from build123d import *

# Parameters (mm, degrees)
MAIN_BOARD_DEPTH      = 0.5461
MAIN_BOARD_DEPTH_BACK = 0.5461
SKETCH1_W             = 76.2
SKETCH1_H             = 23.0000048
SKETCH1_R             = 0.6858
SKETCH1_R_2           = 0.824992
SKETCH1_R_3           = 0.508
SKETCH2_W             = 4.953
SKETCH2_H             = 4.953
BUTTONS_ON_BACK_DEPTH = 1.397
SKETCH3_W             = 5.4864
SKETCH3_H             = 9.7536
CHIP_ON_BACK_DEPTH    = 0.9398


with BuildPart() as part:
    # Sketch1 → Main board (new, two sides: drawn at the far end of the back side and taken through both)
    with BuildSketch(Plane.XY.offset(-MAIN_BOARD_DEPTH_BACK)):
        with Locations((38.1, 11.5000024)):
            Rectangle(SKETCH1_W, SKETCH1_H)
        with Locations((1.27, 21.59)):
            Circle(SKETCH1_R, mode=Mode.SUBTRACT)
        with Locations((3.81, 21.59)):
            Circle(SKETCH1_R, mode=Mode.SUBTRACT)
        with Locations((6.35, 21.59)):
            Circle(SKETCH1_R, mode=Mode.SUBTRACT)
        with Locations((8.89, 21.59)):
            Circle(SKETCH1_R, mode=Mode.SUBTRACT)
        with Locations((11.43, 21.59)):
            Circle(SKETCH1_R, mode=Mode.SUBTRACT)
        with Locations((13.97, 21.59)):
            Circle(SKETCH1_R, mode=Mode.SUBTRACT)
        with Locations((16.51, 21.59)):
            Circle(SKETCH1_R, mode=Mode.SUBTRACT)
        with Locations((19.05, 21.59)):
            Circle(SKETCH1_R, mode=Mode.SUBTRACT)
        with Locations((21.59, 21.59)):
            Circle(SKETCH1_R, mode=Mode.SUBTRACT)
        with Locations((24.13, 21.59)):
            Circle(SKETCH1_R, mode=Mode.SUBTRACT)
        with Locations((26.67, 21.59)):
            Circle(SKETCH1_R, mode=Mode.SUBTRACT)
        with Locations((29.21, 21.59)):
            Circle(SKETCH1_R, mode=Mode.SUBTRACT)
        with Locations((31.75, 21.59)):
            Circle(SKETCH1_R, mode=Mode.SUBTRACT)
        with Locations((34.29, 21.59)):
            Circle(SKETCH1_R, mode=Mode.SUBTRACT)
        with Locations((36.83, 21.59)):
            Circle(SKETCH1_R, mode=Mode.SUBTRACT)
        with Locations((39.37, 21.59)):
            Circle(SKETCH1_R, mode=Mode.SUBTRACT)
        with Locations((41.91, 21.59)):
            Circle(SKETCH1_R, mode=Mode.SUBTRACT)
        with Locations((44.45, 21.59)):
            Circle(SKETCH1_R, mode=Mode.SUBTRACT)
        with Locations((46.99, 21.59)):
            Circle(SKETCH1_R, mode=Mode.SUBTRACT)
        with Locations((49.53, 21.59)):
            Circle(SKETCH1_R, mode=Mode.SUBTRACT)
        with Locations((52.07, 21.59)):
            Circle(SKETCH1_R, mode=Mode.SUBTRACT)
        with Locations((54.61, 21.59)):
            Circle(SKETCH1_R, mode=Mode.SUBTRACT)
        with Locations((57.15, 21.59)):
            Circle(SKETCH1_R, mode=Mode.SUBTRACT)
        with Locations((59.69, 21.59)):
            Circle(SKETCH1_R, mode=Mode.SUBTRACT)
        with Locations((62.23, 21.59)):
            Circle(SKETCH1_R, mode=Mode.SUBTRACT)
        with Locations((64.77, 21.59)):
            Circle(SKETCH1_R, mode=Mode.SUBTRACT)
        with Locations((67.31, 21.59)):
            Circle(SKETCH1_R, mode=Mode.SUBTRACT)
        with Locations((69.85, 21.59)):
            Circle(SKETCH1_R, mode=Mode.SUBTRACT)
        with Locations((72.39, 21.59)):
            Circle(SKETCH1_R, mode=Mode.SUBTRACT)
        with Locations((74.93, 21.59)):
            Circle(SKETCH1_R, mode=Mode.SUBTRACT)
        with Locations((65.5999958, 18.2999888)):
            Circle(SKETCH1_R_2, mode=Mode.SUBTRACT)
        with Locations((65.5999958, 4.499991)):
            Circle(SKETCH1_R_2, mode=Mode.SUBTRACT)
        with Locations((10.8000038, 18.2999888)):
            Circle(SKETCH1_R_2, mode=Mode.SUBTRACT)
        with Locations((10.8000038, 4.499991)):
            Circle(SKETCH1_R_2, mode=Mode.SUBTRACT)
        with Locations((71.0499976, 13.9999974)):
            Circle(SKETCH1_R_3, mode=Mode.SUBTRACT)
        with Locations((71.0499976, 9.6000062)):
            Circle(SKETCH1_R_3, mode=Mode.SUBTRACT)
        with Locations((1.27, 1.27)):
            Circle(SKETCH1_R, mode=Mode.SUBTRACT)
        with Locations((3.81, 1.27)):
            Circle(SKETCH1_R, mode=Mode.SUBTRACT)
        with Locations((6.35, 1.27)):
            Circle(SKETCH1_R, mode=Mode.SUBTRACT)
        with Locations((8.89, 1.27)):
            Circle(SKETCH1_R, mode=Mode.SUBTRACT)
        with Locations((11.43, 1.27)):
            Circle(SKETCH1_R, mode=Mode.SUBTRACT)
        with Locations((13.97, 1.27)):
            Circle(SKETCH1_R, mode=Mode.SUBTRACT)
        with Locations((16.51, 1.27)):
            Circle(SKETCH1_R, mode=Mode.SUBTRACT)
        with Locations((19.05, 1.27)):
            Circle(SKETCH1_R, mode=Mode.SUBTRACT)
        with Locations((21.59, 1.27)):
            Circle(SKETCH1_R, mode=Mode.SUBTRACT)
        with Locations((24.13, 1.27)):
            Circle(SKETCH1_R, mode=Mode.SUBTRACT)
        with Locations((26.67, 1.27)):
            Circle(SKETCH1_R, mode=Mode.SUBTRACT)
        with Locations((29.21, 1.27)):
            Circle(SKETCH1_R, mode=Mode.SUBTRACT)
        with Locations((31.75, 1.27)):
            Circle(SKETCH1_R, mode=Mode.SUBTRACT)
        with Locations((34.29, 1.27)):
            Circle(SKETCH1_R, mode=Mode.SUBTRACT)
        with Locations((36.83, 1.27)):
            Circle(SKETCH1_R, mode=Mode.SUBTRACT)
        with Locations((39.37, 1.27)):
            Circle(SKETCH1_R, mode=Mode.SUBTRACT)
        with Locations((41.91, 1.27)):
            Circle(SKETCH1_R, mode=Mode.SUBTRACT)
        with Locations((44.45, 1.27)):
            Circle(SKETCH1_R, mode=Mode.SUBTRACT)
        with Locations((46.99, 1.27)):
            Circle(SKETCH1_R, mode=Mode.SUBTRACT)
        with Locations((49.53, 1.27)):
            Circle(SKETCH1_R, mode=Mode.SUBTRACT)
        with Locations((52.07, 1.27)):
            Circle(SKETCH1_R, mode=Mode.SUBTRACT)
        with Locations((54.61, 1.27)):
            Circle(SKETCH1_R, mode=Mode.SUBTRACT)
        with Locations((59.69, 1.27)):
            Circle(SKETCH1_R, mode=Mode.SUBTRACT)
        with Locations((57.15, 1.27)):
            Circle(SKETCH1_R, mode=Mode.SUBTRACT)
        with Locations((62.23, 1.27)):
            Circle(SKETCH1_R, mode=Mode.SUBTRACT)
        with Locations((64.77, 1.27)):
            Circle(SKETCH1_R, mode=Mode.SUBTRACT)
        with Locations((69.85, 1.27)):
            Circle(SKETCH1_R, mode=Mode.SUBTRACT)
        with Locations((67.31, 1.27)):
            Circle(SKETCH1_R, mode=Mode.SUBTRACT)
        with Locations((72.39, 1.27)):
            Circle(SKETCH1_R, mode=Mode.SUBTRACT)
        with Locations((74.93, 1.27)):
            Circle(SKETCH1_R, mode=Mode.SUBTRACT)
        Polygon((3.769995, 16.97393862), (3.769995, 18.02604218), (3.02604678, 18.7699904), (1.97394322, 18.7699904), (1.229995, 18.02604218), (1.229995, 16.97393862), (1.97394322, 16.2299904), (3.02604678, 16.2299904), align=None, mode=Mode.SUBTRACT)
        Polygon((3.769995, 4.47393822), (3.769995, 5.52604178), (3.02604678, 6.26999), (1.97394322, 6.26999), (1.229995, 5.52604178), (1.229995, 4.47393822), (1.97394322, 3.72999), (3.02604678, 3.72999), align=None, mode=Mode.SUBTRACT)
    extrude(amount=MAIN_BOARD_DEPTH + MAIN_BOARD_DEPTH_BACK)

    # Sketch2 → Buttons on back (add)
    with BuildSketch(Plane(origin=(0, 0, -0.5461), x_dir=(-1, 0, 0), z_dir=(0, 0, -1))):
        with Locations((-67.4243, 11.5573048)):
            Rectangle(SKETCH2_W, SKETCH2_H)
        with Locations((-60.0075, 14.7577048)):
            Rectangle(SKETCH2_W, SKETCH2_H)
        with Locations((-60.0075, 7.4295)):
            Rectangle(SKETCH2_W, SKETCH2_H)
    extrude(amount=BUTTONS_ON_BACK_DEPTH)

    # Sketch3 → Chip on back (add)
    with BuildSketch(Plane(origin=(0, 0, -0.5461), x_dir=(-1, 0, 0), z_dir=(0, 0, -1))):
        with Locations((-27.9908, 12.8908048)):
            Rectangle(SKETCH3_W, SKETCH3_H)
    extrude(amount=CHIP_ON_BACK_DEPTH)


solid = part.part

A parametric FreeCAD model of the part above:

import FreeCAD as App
import Part
import Sketcher
from FreeCAD import Vector
Q = App.Units.Quantity

doc = App.newDocument("Part")
body = doc.addObject("PartDesign::Body", "Body")

sketch1 = body.newObject("Sketcher::SketchObject", "Sketch")
sketch1.AttachmentSupport = (doc.getObject("XY_Plane"), [""])
sketch1.MapMode = "FlatFace"
sketch1.addGeometry([
    Part.LineSegment(Vector(0, 23, 0), Vector(0, 0, 0)),
    Part.LineSegment(Vector(0, 0, 0), Vector(76.2, 0, 0)),
    Part.LineSegment(Vector(76.2, 0, 0), Vector(76.2, 23, 0)),
    Part.LineSegment(Vector(76.2, 23, 0), Vector(0, 23, 0)),
    Part.Circle(Vector(1.3, 1.3, 0), Vector(0, 0, 1), 0.7),
    Part.Circle(Vector(3.8, 1.3, 0), Vector(0, 0, 1), 0.7),
    Part.Circle(Vector(6.3, 1.3, 0), Vector(0, 0, 1), 0.7),
    Part.Circle(Vector(8.9, 1.3, 0), Vector(0, 0, 1), 0.7),
    Part.Circle(Vector(11.4, 1.3, 0), Vector(0, 0, 1), 0.7),
    Part.Circle(Vector(14, 1.3, 0), Vector(0, 0, 1), 0.7),
    Part.Circle(Vector(16.5, 1.3, 0), Vector(0, 0, 1), 0.7),
    Part.Circle(Vector(19.1, 1.3, 0), Vector(0, 0, 1), 0.7),
    Part.LineSegment(Vector(3.8, 5.5, 0), Vector(3.8, 4.5, 0)),
    Part.LineSegment(Vector(3.8, 4.5, 0), Vector(3, 3.7, 0)),
    Part.LineSegment(Vector(3, 3.7, 0), Vector(2, 3.7, 0)),
    Part.LineSegment(Vector(2, 3.7, 0), Vector(1.2, 4.5, 0)),
    Part.LineSegment(Vector(1.2, 4.5, 0), Vector(1.2, 5.5, 0)),
    Part.LineSegment(Vector(1.2, 5.5, 0), Vector(2, 6.3, 0)),
    Part.LineSegment(Vector(2, 6.3, 0), Vector(3, 6.3, 0)),
    Part.LineSegment(Vector(3, 6.3, 0), Vector(3.8, 5.5, 0)),
    Part.Circle(Vector(10.8, 4.5, 0), Vector(0, 0, 1), 0.8),
    Part.Circle(Vector(21.6, 1.3, 0), Vector(0, 0, 1), 0.7),
    Part.Circle(Vector(24.1, 1.3, 0), Vector(0, 0, 1), 0.7),
    Part.Circle(Vector(26.7, 1.3, 0), Vector(0, 0, 1), 0.7),
    Part.Circle(Vector(29.2, 1.3, 0), Vector(0, 0, 1), 0.7),
    Part.Circle(Vector(31.8, 1.3, 0), Vector(0, 0, 1), 0.7),
    Part.Circle(Vector(34.3, 1.3, 0), Vector(0, 0, 1), 0.7),
    Part.Circle(Vector(36.8, 1.3, 0), Vector(0, 0, 1), 0.7),
    Part.Circle(Vector(39.4, 1.3, 0), Vector(0, 0, 1), 0.7),
    Part.Circle(Vector(41.9, 1.3, 0), Vector(0, 0, 1), 0.7),
    Part.Circle(Vector(44.5, 1.3, 0), Vector(0, 0, 1), 0.7),
    Part.Circle(Vector(47, 1.3, 0), Vector(0, 0, 1), 0.7),
    Part.Circle(Vector(49.5, 1.3, 0), Vector(0, 0, 1), 0.7),
    Part.Circle(Vector(52.1, 1.3, 0), Vector(0, 0, 1), 0.7),
    Part.Circle(Vector(54.6, 1.3, 0), Vector(0, 0, 1), 0.7),
    Part.Circle(Vector(57.1, 1.3, 0), Vector(0, 0, 1), 0.7),
    Part.Circle(Vector(59.7, 1.3, 0), Vector(0, 0, 1), 0.7),
    Part.Circle(Vector(62.2, 1.3, 0), Vector(0, 0, 1), 0.7),
    Part.Circle(Vector(64.8, 1.3, 0), Vector(0, 0, 1), 0.7),
    Part.Circle(Vector(67.3, 1.3, 0), Vector(0, 0, 1), 0.7),
    Part.Circle(Vector(69.8, 1.3, 0), Vector(0, 0, 1), 0.7),
    Part.Circle(Vector(72.4, 1.3, 0), Vector(0, 0, 1), 0.7),
    Part.Circle(Vector(74.9, 1.3, 0), Vector(0, 0, 1), 0.7),
    Part.Circle(Vector(65.6, 4.5, 0), Vector(0, 0, 1), 0.8),
    Part.Circle(Vector(71, 9.6, 0), Vector(0, 0, 1), 0.5),
    Part.LineSegment(Vector(3.8, 18, 0), Vector(3.8, 17, 0)),
    Part.LineSegment(Vector(3.8, 17, 0), Vector(3, 16.2, 0)),
    Part.LineSegment(Vector(3, 16.2, 0), Vector(2, 16.2, 0)),
    Part.LineSegment(Vector(2, 16.2, 0), Vector(1.2, 17, 0)),
    Part.LineSegment(Vector(1.2, 17, 0), Vector(1.2, 18, 0)),
    Part.LineSegment(Vector(1.2, 18, 0), Vector(2, 18.8, 0)),
    Part.LineSegment(Vector(2, 18.8, 0), Vector(3, 18.8, 0)),
    Part.LineSegment(Vector(3, 18.8, 0), Vector(3.8, 18, 0)),
    Part.Circle(Vector(10.8, 18.3, 0), Vector(0, 0, 1), 0.8),
    Part.Circle(Vector(1.3, 21.6, 0), Vector(0, 0, 1), 0.7),
    Part.Circle(Vector(3.8, 21.6, 0), Vector(0, 0, 1), 0.7),
    Part.Circle(Vector(6.3, 21.6, 0), Vector(0, 0, 1), 0.7),
    Part.Circle(Vector(8.9, 21.6, 0), Vector(0, 0, 1), 0.7),
    Part.Circle(Vector(11.4, 21.6, 0), Vector(0, 0, 1), 0.7),
    Part.Circle(Vector(14, 21.6, 0), Vector(0, 0, 1), 0.7),
    Part.Circle(Vector(16.5, 21.6, 0), Vector(0, 0, 1), 0.7),
    Part.Circle(Vector(19.1, 21.6, 0), Vector(0, 0, 1), 0.7),
    Part.Circle(Vector(21.6, 21.6, 0), Vector(0, 0, 1), 0.7),
    Part.Circle(Vector(24.1, 21.6, 0), Vector(0, 0, 1), 0.7),
    Part.Circle(Vector(26.7, 21.6, 0), Vector(0, 0, 1), 0.7),
    Part.Circle(Vector(29.2, 21.6, 0), Vector(0, 0, 1), 0.7),
    Part.Circle(Vector(31.8, 21.6, 0), Vector(0, 0, 1), 0.7),
    Part.Circle(Vector(34.3, 21.6, 0), Vector(0, 0, 1), 0.7),
    Part.Circle(Vector(36.8, 21.6, 0), Vector(0, 0, 1), 0.7),
    Part.Circle(Vector(71, 14, 0), Vector(0, 0, 1), 0.5),
    Part.Circle(Vector(39.4, 21.6, 0), Vector(0, 0, 1), 0.7),
    Part.Circle(Vector(41.9, 21.6, 0), Vector(0, 0, 1), 0.7),
    Part.Circle(Vector(44.5, 21.6, 0), Vector(0, 0, 1), 0.7),
    Part.Circle(Vector(47, 21.6, 0), Vector(0, 0, 1), 0.7),
    Part.Circle(Vector(49.5, 21.6, 0), Vector(0, 0, 1), 0.7),
    Part.Circle(Vector(52.1, 21.6, 0), Vector(0, 0, 1), 0.7),
    Part.Circle(Vector(54.6, 21.6, 0), Vector(0, 0, 1), 0.7),
    Part.Circle(Vector(65.6, 18.3, 0), Vector(0, 0, 1), 0.8),
    Part.Circle(Vector(57.1, 21.6, 0), Vector(0, 0, 1), 0.7),
    Part.Circle(Vector(59.7, 21.6, 0), Vector(0, 0, 1), 0.7),
    Part.Circle(Vector(62.2, 21.6, 0), Vector(0, 0, 1), 0.7),
    Part.Circle(Vector(64.8, 21.6, 0), Vector(0, 0, 1), 0.7),
    Part.Circle(Vector(67.3, 21.6, 0), Vector(0, 0, 1), 0.7),
    Part.Circle(Vector(69.8, 21.6, 0), Vector(0, 0, 1), 0.7),
    Part.Circle(Vector(72.4, 21.6, 0), Vector(0, 0, 1), 0.7),
    Part.Circle(Vector(74.9, 21.6, 0), Vector(0, 0, 1), 0.7),
], False)
sketch1.addConstraint([
    Sketcher.Constraint("Coincident", 0, 2, 1, 1),
    Sketcher.Constraint("Coincident", 1, 2, 2, 1),
    Sketcher.Constraint("Coincident", 2, 2, 3, 1),
    Sketcher.Constraint("Coincident", 3, 2, 0, 1),
    Sketcher.Constraint("Coincident", 12, 2, 13, 1),
    Sketcher.Constraint("Coincident", 13, 2, 14, 1),
    Sketcher.Constraint("Coincident", 14, 2, 15, 1),
    Sketcher.Constraint("Coincident", 15, 2, 16, 1),
    Sketcher.Constraint("Coincident", 16, 2, 17, 1),
    Sketcher.Constraint("Coincident", 17, 2, 18, 1),
    Sketcher.Constraint("Coincident", 18, 2, 19, 1),
    Sketcher.Constraint("Coincident", 19, 2, 12, 1),
    Sketcher.Constraint("Coincident", 45, 2, 46, 1),
    Sketcher.Constraint("Coincident", 46, 2, 47, 1),
    Sketcher.Constraint("Coincident", 47, 2, 48, 1),
    Sketcher.Constraint("Coincident", 48, 2, 49, 1),
    Sketcher.Constraint("Coincident", 49, 2, 50, 1),
    Sketcher.Constraint("Coincident", 50, 2, 51, 1),
    Sketcher.Constraint("Coincident", 51, 2, 52, 1),
    Sketcher.Constraint("Coincident", 52, 2, 45, 1),
    Sketcher.Constraint("Vertical", 0),
    Sketcher.Constraint("Horizontal", 1),
    Sketcher.Constraint("Vertical", 2),
    Sketcher.Constraint("Horizontal", 3),
    Sketcher.Constraint("Vertical", 12),
    Sketcher.Constraint("Horizontal", 14),
    Sketcher.Constraint("Vertical", 16),
    Sketcher.Constraint("Horizontal", 18),
    Sketcher.Constraint("Vertical", 45),
    Sketcher.Constraint("Horizontal", 47),
    Sketcher.Constraint("Vertical", 49),
    Sketcher.Constraint("Horizontal", 51),
    Sketcher.Constraint("Coincident", 0, 2, -1, 1),
    Sketcher.Constraint("Equal", 4, 5),
    Sketcher.Constraint("Equal", 5, 6),
    Sketcher.Constraint("Equal", 6, 7),
    Sketcher.Constraint("Equal", 7, 8),
    Sketcher.Constraint("Equal", 8, 9),
    Sketcher.Constraint("Equal", 9, 10),
    Sketcher.Constraint("Equal", 10, 11),
    Sketcher.Constraint("Equal", 11, 21),
    Sketcher.Constraint("Equal", 21, 22),
    Sketcher.Constraint("Equal", 22, 23),
    Sketcher.Constraint("Equal", 23, 24),
    Sketcher.Constraint("Equal", 24, 25),
    Sketcher.Constraint("Equal", 25, 26),
    Sketcher.Constraint("Equal", 26, 27),
    Sketcher.Constraint("Equal", 27, 28),
    Sketcher.Constraint("Equal", 28, 29),
    Sketcher.Constraint("Equal", 29, 30),
    Sketcher.Constraint("Equal", 30, 31),
    Sketcher.Constraint("Equal", 31, 32),
    Sketcher.Constraint("Equal", 32, 33),
    Sketcher.Constraint("Equal", 33, 34),
    Sketcher.Constraint("Equal", 34, 35),
    Sketcher.Constraint("Equal", 35, 36),
    Sketcher.Constraint("Equal", 36, 37),
    Sketcher.Constraint("Equal", 37, 38),
    Sketcher.Constraint("Equal", 38, 39),
    Sketcher.Constraint("Equal", 39, 40),
    Sketcher.Constraint("Equal", 40, 41),
    Sketcher.Constraint("Equal", 41, 42),
    Sketcher.Constraint("Equal", 20, 43),
    Sketcher.Constraint("Equal", 43, 53),
    Sketcher.Constraint("Equal", 42, 54),
    Sketcher.Constraint("Equal", 54, 55),
    Sketcher.Constraint("Equal", 55, 56),
    Sketcher.Constraint("Equal", 56, 57),
    Sketcher.Constraint("Equal", 57, 58),
    Sketcher.Constraint("Equal", 58, 59),
    Sketcher.Constraint("Equal", 59, 60),
    Sketcher.Constraint("Equal", 60, 61),
    Sketcher.Constraint("Equal", 61, 62),
    Sketcher.Constraint("Equal", 62, 63),
    Sketcher.Constraint("Equal", 63, 64),
    Sketcher.Constraint("Equal", 64, 65),
    Sketcher.Constraint("Equal", 65, 66),
    Sketcher.Constraint("Equal", 66, 67),
    Sketcher.Constraint("Equal", 67, 68),
    Sketcher.Constraint("Equal", 44, 69),
    Sketcher.Constraint("Equal", 68, 70),
    Sketcher.Constraint("Equal", 70, 71),
    Sketcher.Constraint("Equal", 71, 72),
    Sketcher.Constraint("Equal", 72, 73),
    Sketcher.Constraint("Equal", 73, 74),
    Sketcher.Constraint("Equal", 74, 75),
    Sketcher.Constraint("Equal", 75, 76),
    Sketcher.Constraint("Equal", 53, 77),
    Sketcher.Constraint("Equal", 76, 78),
    Sketcher.Constraint("Equal", 78, 79),
    Sketcher.Constraint("Equal", 79, 80),
    Sketcher.Constraint("Equal", 80, 81),
    Sketcher.Constraint("Equal", 81, 82),
    Sketcher.Constraint("Equal", 82, 83),
    Sketcher.Constraint("Equal", 83, 84),
    Sketcher.Constraint("Equal", 84, 85),
    Sketcher.Constraint("Perpendicular", 13, 15),
    Sketcher.Constraint("Perpendicular", 15, 17),
    Sketcher.Constraint("Perpendicular", 17, 19),
    Sketcher.Constraint("Perpendicular", 19, 46),
    Sketcher.Constraint("Perpendicular", 46, 48),
    Sketcher.Constraint("Perpendicular", 48, 50),
    Sketcher.Constraint("Perpendicular", 50, 52),
    Sketcher.Constraint("Horizontal", 4, 3, 5, 3),
    Sketcher.Constraint("Horizontal", 5, 3, 6, 3),
    Sketcher.Constraint("Horizontal", 6, 3, 7, 3),
    Sketcher.Constraint("Horizontal", 7, 3, 8, 3),
    Sketcher.Constraint("Horizontal", 8, 3, 9, 3),
    Sketcher.Constraint("Horizontal", 9, 3, 10, 3),
    Sketcher.Constraint("Horizontal", 10, 3, 11, 3),
    Sketcher.Constraint("Horizontal", 11, 3, 21, 3),
    Sketcher.Constraint("Horizontal", 21, 3, 22, 3),
    Sketcher.Constraint("Horizontal", 22, 3, 23, 3),
    Sketcher.Constraint("Horizontal", 23, 3, 24, 3),
    Sketcher.Constraint("Horizontal", 24, 3, 25, 3),
    Sketcher.Constraint("Horizontal", 25, 3, 26, 3),
    Sketcher.Constraint("Horizontal", 26, 3, 27, 3),
    Sketcher.Constraint("Horizontal", 27, 3, 28, 3),
    Sketcher.Constraint("Horizontal", 28, 3, 29, 3),
    Sketcher.Constraint("Horizontal", 29, 3, 30, 3),
    Sketcher.Constraint("Horizontal", 30, 3, 31, 3),
    Sketcher.Constraint("Horizontal", 31, 3, 32, 3),
    Sketcher.Constraint("Horizontal", 32, 3, 33, 3),
    Sketcher.Constraint("Horizontal", 33, 3, 34, 3),
    Sketcher.Constraint("Horizontal", 34, 3, 35, 3),
    Sketcher.Constraint("Horizontal", 35, 3, 36, 3),
    Sketcher.Constraint("Horizontal", 36, 3, 37, 3),
    Sketcher.Constraint("Horizontal", 37, 3, 38, 3),
    Sketcher.Constraint("Horizontal", 38, 3, 39, 3),
    Sketcher.Constraint("Horizontal", 39, 3, 40, 3),
    Sketcher.Constraint("Horizontal", 40, 3, 41, 3),
    Sketcher.Constraint("Horizontal", 41, 3, 42, 3),
    Sketcher.Constraint("Horizontal", 20, 3, 43, 3),
    Sketcher.Constraint("Horizontal", 54, 3, 55, 3),
    Sketcher.Constraint("Horizontal", 55, 3, 56, 3),
    Sketcher.Constraint("Horizontal", 56, 3, 57, 3),
    Sketcher.Constraint("Horizontal", 57, 3, 58, 3),
    Sketcher.Constraint("Horizontal", 58, 3, 59, 3),
    Sketcher.Constraint("Horizontal", 59, 3, 60, 3),
    Sketcher.Constraint("Horizontal", 60, 3, 61, 3),
    Sketcher.Constraint("Horizontal", 61, 3, 62, 3),
    Sketcher.Constraint("Horizontal", 62, 3, 63, 3),
    Sketcher.Constraint("Horizontal", 63, 3, 64, 3),
    Sketcher.Constraint("Horizontal", 64, 3, 65, 3),
    Sketcher.Constraint("Horizontal", 65, 3, 66, 3),
    Sketcher.Constraint("Horizontal", 66, 3, 67, 3),
    Sketcher.Constraint("Horizontal", 67, 3, 68, 3),
    Sketcher.Constraint("Horizontal", 68, 3, 70, 3),
    Sketcher.Constraint("Horizontal", 70, 3, 71, 3),
    Sketcher.Constraint("Horizontal", 71, 3, 72, 3),
    Sketcher.Constraint("Horizontal", 72, 3, 73, 3),
    Sketcher.Constraint("Horizontal", 73, 3, 74, 3),
    Sketcher.Constraint("Horizontal", 74, 3, 75, 3),
    Sketcher.Constraint("Horizontal", 75, 3, 76, 3),
    Sketcher.Constraint("Horizontal", 53, 3, 77, 3),
    Sketcher.Constraint("Horizontal", 76, 3, 78, 3),
    Sketcher.Constraint("Horizontal", 78, 3, 79, 3),
    Sketcher.Constraint("Horizontal", 79, 3, 80, 3),
    Sketcher.Constraint("Horizontal", 80, 3, 81, 3),
    Sketcher.Constraint("Horizontal", 81, 3, 82, 3),
    Sketcher.Constraint("Horizontal", 82, 3, 83, 3),
    Sketcher.Constraint("Horizontal", 83, 3, 84, 3),
    Sketcher.Constraint("Horizontal", 84, 3, 85, 3),
    Sketcher.Constraint("Horizontal", 12, 2, 15, 2),
    Sketcher.Constraint("Horizontal", 16, 2, 19, 2),
    Sketcher.Constraint("Horizontal", 45, 2, 48, 2),
    Sketcher.Constraint("Horizontal", 49, 2, 52, 2),
    Sketcher.Constraint("Vertical", 20, 3, 53, 3),
    Sketcher.Constraint("Vertical", 4, 3, 54, 3),
    Sketcher.Constraint("Vertical", 5, 3, 55, 3),
    Sketcher.Constraint("Vertical", 6, 3, 56, 3),
    Sketcher.Constraint("Vertical", 7, 3, 57, 3),
    Sketcher.Constraint("Vertical", 8, 3, 58, 3),
    Sketcher.Constraint("Vertical", 9, 3, 59, 3),
    Sketcher.Constraint("Vertical", 10, 3, 60, 3),
    Sketcher.Constraint("Vertical", 11, 3, 61, 3),
    Sketcher.Constraint("Vertical", 21, 3, 62, 3),
    Sketcher.Constraint("Vertical", 22, 3, 63, 3),
    Sketcher.Constraint("Vertical", 23, 3, 64, 3),
    Sketcher.Constraint("Vertical", 24, 3, 65, 3),
    Sketcher.Constraint("Vertical", 25, 3, 66, 3),
    Sketcher.Constraint("Vertical", 26, 3, 67, 3),
    Sketcher.Constraint("Vertical", 27, 3, 68, 3),
    Sketcher.Constraint("Vertical", 44, 3, 69, 3),
    Sketcher.Constraint("Vertical", 28, 3, 70, 3),
    Sketcher.Constraint("Vertical", 29, 3, 71, 3),
    Sketcher.Constraint("Vertical", 30, 3, 72, 3),
    Sketcher.Constraint("Vertical", 31, 3, 73, 3),
    Sketcher.Constraint("Vertical", 32, 3, 74, 3),
    Sketcher.Constraint("Vertical", 33, 3, 75, 3),
    Sketcher.Constraint("Vertical", 34, 3, 76, 3),
    Sketcher.Constraint("Vertical", 43, 3, 77, 3),
    Sketcher.Constraint("Vertical", 35, 3, 78, 3),
    Sketcher.Constraint("Vertical", 36, 3, 79, 3),
    Sketcher.Constraint("Vertical", 37, 3, 80, 3),
    Sketcher.Constraint("Vertical", 38, 3, 81, 3),
    Sketcher.Constraint("Vertical", 39, 3, 82, 3),
    Sketcher.Constraint("Vertical", 40, 3, 83, 3),
    Sketcher.Constraint("Vertical", 41, 3, 84, 3),
    Sketcher.Constraint("Vertical", 42, 3, 85, 3),
    Sketcher.Constraint("Vertical", 14, 2, 17, 2),
    Sketcher.Constraint("Vertical", 13, 2, 18, 2),
    Sketcher.Constraint("Vertical", 19, 2, 45, 2),
    Sketcher.Constraint("Vertical", 18, 2, 46, 2),
    Sketcher.Constraint("Vertical", 17, 2, 47, 2),
    Sketcher.Constraint("Vertical", 47, 2, 50, 2),
    Sketcher.Constraint("Equal", 51, 12),
    Sketcher.Constraint("Equal", 16, 45),
    Sketcher.Constraint("Diameter", 44, Q("0.04 in")),
    Sketcher.Constraint("DistanceX", 1, 1, 1, 2, Q("3 in")),
    Sketcher.Constraint("Diameter", 4, Q("0.054 in")),
    Sketcher.Constraint("DistanceX", -1, 1, 4, 3, Q("0.05 in")),
    Sketcher.Constraint("DistanceY", -1, 1, 4, 3, Q("0.05 in")),
    Sketcher.Constraint("DistanceX", -1, 1, 5, 3, Q("0.15 in")),
    Sketcher.Constraint("DistanceX", -1, 1, 6, 3, Q("0.25 in")),
    Sketcher.Constraint("DistanceX", -1, 1, 7, 3, Q("0.35 in")),
    Sketcher.Constraint("DistanceX", -1, 1, 8, 3, Q("0.45 in")),
    Sketcher.Constraint("DistanceX", -1, 1, 9, 3, Q("0.55 in")),
    Sketcher.Constraint("DistanceX", -1, 1, 10, 3, Q("0.65 in")),
    Sketcher.Constraint("DistanceX", -1, 1, 11, 3, Q("0.75 in")),
    Sketcher.Constraint("DistanceX", -1, 1, 21, 3, Q("0.85 in")),
    Sketcher.Constraint("DistanceX", -1, 1, 22, 3, Q("0.95 in")),
    Sketcher.Constraint("DistanceX", -1, 1, 23, 3, Q("1.05 in")),
    Sketcher.Constraint("DistanceX", -1, 1, 24, 3, Q("1.15 in")),
    Sketcher.Constraint("DistanceX", -1, 1, 25, 3, Q("1.25 in")),
    Sketcher.Constraint("DistanceX", -1, 1, 26, 3, Q("1.35 in")),
    Sketcher.Constraint("DistanceX", -1, 1, 27, 3, Q("1.45 in")),
    Sketcher.Constraint("DistanceX", -1, 1, 28, 3, Q("1.55 in")),
    Sketcher.Constraint("DistanceX", -1, 1, 29, 3, Q("1.65 in")),
    Sketcher.Constraint("DistanceX", -1, 1, 30, 3, Q("1.75 in")),
    Sketcher.Constraint("DistanceX", -1, 1, 31, 3, Q("1.85 in")),
    Sketcher.Constraint("DistanceX", -1, 1, 32, 3, Q("1.95 in")),
    Sketcher.Constraint("DistanceX", -1, 1, 33, 3, Q("2.05 in")),
    Sketcher.Constraint("DistanceX", -1, 1, 34, 3, Q("2.15 in")),
    Sketcher.Constraint("DistanceX", -1, 1, 35, 3, Q("2.25 in")),
    Sketcher.Constraint("DistanceX", -1, 1, 36, 3, Q("2.35 in")),
    Sketcher.Constraint("DistanceX", -1, 1, 37, 3, Q("2.45 in")),
    Sketcher.Constraint("DistanceX", -1, 1, 38, 3, Q("2.55 in")),
    Sketcher.Constraint("DistanceX", -1, 1, 39, 3, Q("2.65 in")),
    Sketcher.Constraint("DistanceX", -1, 1, 40, 3, Q("2.75 in")),
    Sketcher.Constraint("DistanceX", -1, 1, 41, 3, Q("2.85 in")),
    Sketcher.Constraint("DistanceX", -1, 1, 42, 3, Q("2.95 in")),
    Sketcher.Constraint("DistanceY", -1, 1, 54, 3, Q("0.85 in")),
    Sketcher.Constraint("Diameter", 20, 1.649984),
    Sketcher.Constraint("Distance", 13, 1.052102),
    Sketcher.Constraint("DistanceX", 14, 2, 14, 1, 1.052104),
    Sketcher.Constraint("DistanceY", 0, 2, 0, 1, 23.000005),
    Sketcher.Constraint("DistanceY", -1, 1, 20, 3, 4.499991),
    Sketcher.Constraint("DistanceY", -1, 1, 53, 3, 18.299989),
    Sketcher.Constraint("DistanceY", -1, 1, 12, 2, 4.473938),
    Sketcher.Constraint("DistanceY", -1, 1, 45, 2, 16.973939),
    Sketcher.Constraint("DistanceX", -1, 1, 20, 3, 10.800004),
    Sketcher.Constraint("DistanceX", -1, 1, 43, 3, 65.599996),
    Sketcher.Constraint("DistanceX", -1, 1, 44, 3, 71.049998),
    Sketcher.Constraint("DistanceY", -1, 1, 44, 3, 9.600006),
    Sketcher.Constraint("DistanceY", -1, 1, 69, 3, 13.999997),
    Sketcher.Constraint("DistanceX", -1, 1, 12, 2, 3.769995),
])
pad1 = body.newObject("PartDesign::Pad", "Pad")
pad1.Profile = sketch1
pad1.Type = "TwoLengths"
pad1.Length = Q("0.0215 in")
pad1.Length2 = Q("0.0215 in")

sketch2 = body.newObject("Sketcher::SketchObject", "Sketch001")
sketch2.AttachmentSupport = (doc.getObject("XY_Plane"), [""])
sketch2.MapMode = "FlatFace"
sketch2.AttachmentOffset = App.Placement(Vector(0, 0, -0.0215 * 25.4), App.Rotation())
sketch2.addGeometry([
    Part.LineSegment(Vector(69.9, 14, 0), Vector(69.9, 9.1, 0)),
    Part.LineSegment(Vector(69.9, 9.1, 0), Vector(64.9, 9.1, 0)),
    Part.LineSegment(Vector(64.9, 9.1, 0), Vector(64.9, 14, 0)),
    Part.LineSegment(Vector(64.9, 14, 0), Vector(69.9, 14, 0)),
    Part.LineSegment(Vector(62.5, 17.2, 0), Vector(62.5, 12.3, 0)),
    Part.LineSegment(Vector(62.5, 12.3, 0), Vector(57.5, 12.3, 0)),
    Part.LineSegment(Vector(57.5, 12.3, 0), Vector(57.5, 17.2, 0)),
    Part.LineSegment(Vector(57.5, 17.2, 0), Vector(62.5, 17.2, 0)),
    Part.LineSegment(Vector(62.5, 9.9, 0), Vector(62.5, 5, 0)),
    Part.LineSegment(Vector(62.5, 5, 0), Vector(57.5, 5, 0)),
    Part.LineSegment(Vector(57.5, 5, 0), Vector(57.5, 9.9, 0)),
    Part.LineSegment(Vector(57.5, 9.9, 0), Vector(62.5, 9.9, 0)),
], False)
sketch2.addConstraint([
    Sketcher.Constraint("Coincident", 0, 2, 1, 1),
    Sketcher.Constraint("Coincident", 1, 2, 2, 1),
    Sketcher.Constraint("Coincident", 2, 2, 3, 1),
    Sketcher.Constraint("Coincident", 3, 2, 0, 1),
    Sketcher.Constraint("Coincident", 4, 2, 5, 1),
    Sketcher.Constraint("Coincident", 5, 2, 6, 1),
    Sketcher.Constraint("Coincident", 6, 2, 7, 1),
    Sketcher.Constraint("Coincident", 7, 2, 4, 1),
    Sketcher.Constraint("Coincident", 8, 2, 9, 1),
    Sketcher.Constraint("Coincident", 9, 2, 10, 1),
    Sketcher.Constraint("Coincident", 10, 2, 11, 1),
    Sketcher.Constraint("Coincident", 11, 2, 8, 1),
    Sketcher.Constraint("Vertical", 0),
    Sketcher.Constraint("Horizontal", 1),
    Sketcher.Constraint("Vertical", 2),
    Sketcher.Constraint("Horizontal", 3),
    Sketcher.Constraint("Vertical", 4),
    Sketcher.Constraint("Horizontal", 5),
    Sketcher.Constraint("Vertical", 6),
    Sketcher.Constraint("Horizontal", 7),
    Sketcher.Constraint("Vertical", 8),
    Sketcher.Constraint("Horizontal", 9),
    Sketcher.Constraint("Vertical", 10),
    Sketcher.Constraint("Horizontal", 11),
    Sketcher.Constraint("Vertical", 7, 2, 8, 2),
    Sketcher.Constraint("Vertical", 6, 2, 9, 2),
    Sketcher.Constraint("Equal", 3, 5),
    Sketcher.Constraint("Equal", 11, 0),
    Sketcher.Constraint("Equal", 2, 4),
    Sketcher.Constraint("Equal", 6, 8),
    Sketcher.Constraint("DistanceX", 1, 2, 1, 1, Q("0.195 in")),
    Sketcher.Constraint("DistanceX", -1, 1, 4, 2, Q("2.46 in")),
    Sketcher.Constraint("DistanceY", -1, 1, 10, 2, Q("0.39 in")),
    Sketcher.Constraint("DistanceX", -1, 1, 0, 2, Q("2.752 in")),
    Sketcher.Constraint("DistanceY", 4, 2, 2, 2, Q("0.069 in")),
    Sketcher.Constraint("DistanceY", -1, 1, 0, 2, 9.080805),
])
pad2 = body.newObject("PartDesign::Pad", "Pad001")
pad2.Profile = sketch2
pad2.Length = Q("0.055 in")
pad2.Reversed = True

sketch3 = body.newObject("Sketcher::SketchObject", "Sketch002")
sketch3.AttachmentSupport = (doc.getObject("XY_Plane"), [""])
sketch3.MapMode = "FlatFace"
sketch3.AttachmentOffset = App.Placement(Vector(0, 0, -0.0215 * 25.4), App.Rotation())
sketch3.addGeometry([
    Part.LineSegment(Vector(31, 18, 0), Vector(31, 8, 0)),
    Part.LineSegment(Vector(31, 8, 0), Vector(25, 8, 0)),
    Part.LineSegment(Vector(25, 8, 0), Vector(25, 18, 0)),
    Part.LineSegment(Vector(25, 18, 0), Vector(31, 18, 0)),
], False)
sketch3.addConstraint([
    Sketcher.Constraint("Coincident", 0, 2, 1, 1),
    Sketcher.Constraint("Coincident", 1, 2, 2, 1),
    Sketcher.Constraint("Coincident", 2, 2, 3, 1),
    Sketcher.Constraint("Coincident", 3, 2, 0, 1),
    Sketcher.Constraint("Vertical", 0),
    Sketcher.Constraint("Horizontal", 1),
    Sketcher.Constraint("Vertical", 2),
    Sketcher.Constraint("Horizontal", 3),
    Sketcher.Constraint("DistanceX", 1, 2, 1, 1, Q("0.216 in")),
    Sketcher.Constraint("DistanceY", 0, 2, 0, 1, Q("0.384 in")),
    Sketcher.Constraint("DistanceX", -1, 1, 0, 2, Q("1.21 in")),
    Sketcher.Constraint("DistanceY", -1, 1, 0, 2, 8.014005),
])
pad3 = body.newObject("PartDesign::Pad", "Pad002")
pad3.Profile = sketch3
pad3.Length = Q("0.037 in")
pad3.Reversed = True

doc.recompute()
